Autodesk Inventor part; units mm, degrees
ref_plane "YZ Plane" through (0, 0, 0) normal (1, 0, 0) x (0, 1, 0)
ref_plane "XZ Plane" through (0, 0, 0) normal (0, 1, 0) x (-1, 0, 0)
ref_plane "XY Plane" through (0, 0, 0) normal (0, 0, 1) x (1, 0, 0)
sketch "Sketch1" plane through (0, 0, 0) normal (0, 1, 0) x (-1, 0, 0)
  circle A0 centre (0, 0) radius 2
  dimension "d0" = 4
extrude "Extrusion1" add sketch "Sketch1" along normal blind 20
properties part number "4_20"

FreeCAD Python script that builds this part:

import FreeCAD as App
import Part
import Sketcher

doc = App.newDocument("Part")
params = doc.addObject("Spreadsheet::Sheet", "Params")
for row, (alias, value) in enumerate([
    ("sketch1_diameter", "4 mm"),
    ("pad1_length", "20 mm"),
], start=1):
    params.set(f"A{row}", alias)
    params.set(f"B{row}", "=" + value)
    params.setAlias(f"B{row}", alias)

body = doc.addObject("PartDesign::Body", "Body")

# Sketch on XZ plane
sketch1 = body.newObject("Sketcher::SketchObject", "Sketch")
sketch1.AttachmentSupport = (doc.getObject("XZ_Plane"), [""])
sketch1.MapMode = "FlatFace"
sketch1.addGeometry(Part.Circle(App.Vector(0, 0, 0), App.Vector(0, 0, 1), 2), False)
sketch1.addConstraint([
    Sketcher.Constraint("Coincident", 0, 3, -1, 1),
    Sketcher.Constraint("Diameter", 0, 4.0),
])
sketch1.setExpression("Constraints[1]", "Params.sketch1_diameter")
pad1 = body.newObject("PartDesign::Pad", "Pad")
pad1.Profile = sketch1
pad1.setExpression("Length", "Params.pad1_length")
pad1.Reversed = True

doc.recompute()
